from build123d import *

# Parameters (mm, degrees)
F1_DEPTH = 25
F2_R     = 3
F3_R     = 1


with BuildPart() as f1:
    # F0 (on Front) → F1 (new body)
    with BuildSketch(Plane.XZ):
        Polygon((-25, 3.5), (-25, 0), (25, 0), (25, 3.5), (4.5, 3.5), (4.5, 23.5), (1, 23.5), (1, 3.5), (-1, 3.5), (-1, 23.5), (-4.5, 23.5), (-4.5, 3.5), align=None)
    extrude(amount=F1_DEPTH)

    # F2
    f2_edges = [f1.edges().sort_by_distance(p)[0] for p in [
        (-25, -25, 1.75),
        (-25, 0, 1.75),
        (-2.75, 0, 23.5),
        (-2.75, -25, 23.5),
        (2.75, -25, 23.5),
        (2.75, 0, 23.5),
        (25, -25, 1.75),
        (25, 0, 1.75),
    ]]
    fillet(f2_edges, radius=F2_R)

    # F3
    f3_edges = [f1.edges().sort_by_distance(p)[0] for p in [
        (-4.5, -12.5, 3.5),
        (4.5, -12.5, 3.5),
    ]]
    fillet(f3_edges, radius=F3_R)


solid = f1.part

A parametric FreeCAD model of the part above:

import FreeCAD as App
import Part
import Sketcher

V = App.Vector
Q = App.Units.Quantity


def edges_at(feature, points):
    """Names of the edges that pass closest to the given points."""
    edges = feature.Shape.Edges
    near = lambda p: min(range(len(edges)), key=lambda i: edges[i].distToShape(Part.Vertex(*p))[0])
    return sorted({f"Edge{near(p) + 1}" for p in points})


def add_polygon(sketch, points):
    """Adds a closed chain of lines whose ends are joined by coincident constraints."""
    first, n = sketch.GeometryCount, len(points)
    for a, b in zip(points, points[1:] + points[:1]):
        sketch.addGeometry(Part.LineSegment(App.Vector(*a, 0), App.Vector(*b, 0)), False)
    for i in range(n):
        sketch.addConstraint(Sketcher.Constraint("Coincident", first + i, 2, first + (i + 1) % n, 1))

doc = App.newDocument("Part")
params = doc.addObject("Spreadsheet::Sheet", "Params")
for row, (alias, value) in enumerate([
    ("sketch1_width", "50 mm"),
    ("sketch1_width2", "2 mm"),
    ("sketch1_height", "20 mm"),
    ("sketch1_width3", "20.5 mm"),
    ("pad1_length", "25 mm"),
    ("fillet_radius", "3 mm"),
    ("fillet2_radius", "1 mm"),
], start=1):
    params.set(f"A{row}", alias)
    params.set(f"B{row}", "=" + value)
    params.setAlias(f"B{row}", alias)

body = doc.addObject("PartDesign::Body", "Body")

# Sketch on XZ plane
sketch1 = body.newObject("Sketcher::SketchObject", "Sketch")
sketch1.AttachmentSupport = (doc.getObject("XZ_Plane"), [""])
sketch1.MapMode = "FlatFace"
add_polygon(sketch1, [(-25, 3.5), (-25, 0), (25, 0), (25, 3.5), (4.5, 3.5), (4.5, 23.5), (1, 23.5), (1, 3.5), (-1, 3.5), (-1, 23.5), (-4.5, 23.5), (-4.5, 3.5)])  # lines 0-11
sketch1.addConstraint([
    Sketcher.Constraint("Vertical", 0),
    Sketcher.Constraint("Horizontal", 1),
    Sketcher.Constraint("Vertical", 2),
    Sketcher.Constraint("Horizontal", 3),
    Sketcher.Constraint("Vertical", 4),
    Sketcher.Constraint("Horizontal", 5),
    Sketcher.Constraint("Vertical", 6),
    Sketcher.Constraint("Horizontal", 7),
    Sketcher.Constraint("Vertical", 8),
    Sketcher.Constraint("Horizontal", 9),
    Sketcher.Constraint("Vertical", 10),
    Sketcher.Constraint("Horizontal", 11),
    Sketcher.Constraint("Symmetric", 0, 2, 1, 2, -1, 1),
    Sketcher.Constraint("Symmetric", 5, 2, 8, 2, -2),
    Sketcher.Constraint("Symmetric", 3, 2, 10, 2, -2),
    Sketcher.Constraint("Horizontal", 3, 2, 6, 2),
    Sketcher.Constraint("Equal", 9, 0),
    Sketcher.Constraint("DistanceX", 1, 1, 1, 2, Q("50 mm")),
    Sketcher.Constraint("DistanceX", 7, 2, 7, 1, Q("2 mm")),
    Sketcher.Constraint("DistanceY", 4, 1, 4, 2, Q("20 mm")),
    Sketcher.Constraint("DistanceX", 3, 2, 3, 1, Q("20.5 mm")),
])
sketch1.setExpression("Constraints[29]", "Params.sketch1_width")
sketch1.setExpression("Constraints[30]", "Params.sketch1_width2")
sketch1.setExpression("Constraints[31]", "Params.sketch1_height")
sketch1.setExpression("Constraints[32]", "Params.sketch1_width3")
pad1 = body.newObject("PartDesign::Pad", "Pad")
pad1.Profile = sketch1
pad1.setExpression("Length", "Params.pad1_length")
doc.recompute()

fillet = body.newObject("PartDesign::Fillet", "Fillet")
fillet.Base = (pad1, edges_at(pad1, [
    (-25, -25, 1.75),
    (-25, 0, 1.75),
    (-2.75, 0, 23.5),
    (-2.75, -25, 23.5),
    (2.75, -25, 23.5),
    (2.75, 0, 23.5),
    (25, -25, 1.75),
    (25, 0, 1.75),
]))
fillet.setExpression("Radius", "Params.fillet_radius")
doc.recompute()

fillet2 = body.newObject("PartDesign::Fillet", "Fillet001")
fillet2.Base = (fillet, edges_at(fillet, [(-4.5, -12.5, 3.5), (4.5, -12.5, 3.5)]))
fillet2.setExpression("Radius", "Params.fillet2_radius")

doc.recompute()
